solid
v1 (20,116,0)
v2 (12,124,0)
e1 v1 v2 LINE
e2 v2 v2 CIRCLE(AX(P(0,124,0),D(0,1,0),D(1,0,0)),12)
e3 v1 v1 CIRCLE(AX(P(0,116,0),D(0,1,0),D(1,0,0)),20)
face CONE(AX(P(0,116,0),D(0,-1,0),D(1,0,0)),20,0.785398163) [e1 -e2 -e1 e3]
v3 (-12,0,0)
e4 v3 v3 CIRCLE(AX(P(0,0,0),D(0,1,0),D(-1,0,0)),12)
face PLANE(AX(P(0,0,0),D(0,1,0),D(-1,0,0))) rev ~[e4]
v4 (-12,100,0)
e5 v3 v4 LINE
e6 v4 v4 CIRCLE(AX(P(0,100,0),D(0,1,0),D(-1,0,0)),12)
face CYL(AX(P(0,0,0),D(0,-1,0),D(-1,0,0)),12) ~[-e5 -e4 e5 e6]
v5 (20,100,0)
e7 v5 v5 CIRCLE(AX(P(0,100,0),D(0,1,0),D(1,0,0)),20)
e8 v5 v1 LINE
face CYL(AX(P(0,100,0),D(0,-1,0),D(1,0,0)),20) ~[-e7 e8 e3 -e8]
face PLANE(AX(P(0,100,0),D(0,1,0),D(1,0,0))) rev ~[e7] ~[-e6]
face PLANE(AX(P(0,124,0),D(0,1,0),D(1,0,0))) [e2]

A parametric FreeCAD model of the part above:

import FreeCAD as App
import Part
import Sketcher
Q = App.Units.Quantity


def edges_at(feature, points):
    """Names of the edges that pass closest to the given points."""
    edges = feature.Shape.Edges
    near = lambda p: min(range(len(edges)), key=lambda i: edges[i].distToShape(Part.Vertex(*p))[0])
    return sorted({f"Edge{near(p) + 1}" for p in points})

doc = App.newDocument("Part")
body = doc.addObject("PartDesign::Body", "Body")

# Sketch on XZ plane
sketch1 = body.newObject("Sketcher::SketchObject", "Sketch")
sketch1.AttachmentSupport = (doc.getObject("XZ_Plane"), [""])
sketch1.MapMode = "FlatFace"
sketch1.addGeometry(Part.Circle(App.Vector(0, 0, 0), App.Vector(0, 0, 1), 12), False)
sketch1.addConstraint(Sketcher.Constraint("Coincident", 0, 3, -1, 1))
sketch1.addConstraint(Sketcher.Constraint("Diameter", 0, Q("24 mm")))
pad1 = body.newObject("PartDesign::Pad", "Pad")
pad1.Profile = sketch1
pad1.Length = 100
pad1.Reversed = True

# Sketch on XZ plane
sketch2 = body.newObject("Sketcher::SketchObject", "Sketch001")
sketch2.AttachmentSupport = (doc.getObject("XZ_Plane"), [""])
sketch2.MapMode = "FlatFace"
sketch2.AttachmentOffset = App.Placement(App.Vector(0, 0, -100), App.Rotation())
sketch2.addGeometry(Part.Circle(App.Vector(0, 0, 0), App.Vector(0, 0, 1), 20), False)
sketch2.addConstraint(Sketcher.Constraint("Coincident", 0, 3, -1, 1))
sketch2.addConstraint(Sketcher.Constraint("Diameter", 0, Q("40 mm")))
pad2 = body.newObject("PartDesign::Pad", "Pad001")
pad2.Profile = sketch2
pad2.Length = 24
pad2.Reversed = True
doc.recompute()

chamfer = body.newObject("PartDesign::Chamfer", "Chamfer")
chamfer.Base = (pad2, edges_at(pad2, [(-20, 124, 0)]))
chamfer.Size = 8

doc.recompute()
